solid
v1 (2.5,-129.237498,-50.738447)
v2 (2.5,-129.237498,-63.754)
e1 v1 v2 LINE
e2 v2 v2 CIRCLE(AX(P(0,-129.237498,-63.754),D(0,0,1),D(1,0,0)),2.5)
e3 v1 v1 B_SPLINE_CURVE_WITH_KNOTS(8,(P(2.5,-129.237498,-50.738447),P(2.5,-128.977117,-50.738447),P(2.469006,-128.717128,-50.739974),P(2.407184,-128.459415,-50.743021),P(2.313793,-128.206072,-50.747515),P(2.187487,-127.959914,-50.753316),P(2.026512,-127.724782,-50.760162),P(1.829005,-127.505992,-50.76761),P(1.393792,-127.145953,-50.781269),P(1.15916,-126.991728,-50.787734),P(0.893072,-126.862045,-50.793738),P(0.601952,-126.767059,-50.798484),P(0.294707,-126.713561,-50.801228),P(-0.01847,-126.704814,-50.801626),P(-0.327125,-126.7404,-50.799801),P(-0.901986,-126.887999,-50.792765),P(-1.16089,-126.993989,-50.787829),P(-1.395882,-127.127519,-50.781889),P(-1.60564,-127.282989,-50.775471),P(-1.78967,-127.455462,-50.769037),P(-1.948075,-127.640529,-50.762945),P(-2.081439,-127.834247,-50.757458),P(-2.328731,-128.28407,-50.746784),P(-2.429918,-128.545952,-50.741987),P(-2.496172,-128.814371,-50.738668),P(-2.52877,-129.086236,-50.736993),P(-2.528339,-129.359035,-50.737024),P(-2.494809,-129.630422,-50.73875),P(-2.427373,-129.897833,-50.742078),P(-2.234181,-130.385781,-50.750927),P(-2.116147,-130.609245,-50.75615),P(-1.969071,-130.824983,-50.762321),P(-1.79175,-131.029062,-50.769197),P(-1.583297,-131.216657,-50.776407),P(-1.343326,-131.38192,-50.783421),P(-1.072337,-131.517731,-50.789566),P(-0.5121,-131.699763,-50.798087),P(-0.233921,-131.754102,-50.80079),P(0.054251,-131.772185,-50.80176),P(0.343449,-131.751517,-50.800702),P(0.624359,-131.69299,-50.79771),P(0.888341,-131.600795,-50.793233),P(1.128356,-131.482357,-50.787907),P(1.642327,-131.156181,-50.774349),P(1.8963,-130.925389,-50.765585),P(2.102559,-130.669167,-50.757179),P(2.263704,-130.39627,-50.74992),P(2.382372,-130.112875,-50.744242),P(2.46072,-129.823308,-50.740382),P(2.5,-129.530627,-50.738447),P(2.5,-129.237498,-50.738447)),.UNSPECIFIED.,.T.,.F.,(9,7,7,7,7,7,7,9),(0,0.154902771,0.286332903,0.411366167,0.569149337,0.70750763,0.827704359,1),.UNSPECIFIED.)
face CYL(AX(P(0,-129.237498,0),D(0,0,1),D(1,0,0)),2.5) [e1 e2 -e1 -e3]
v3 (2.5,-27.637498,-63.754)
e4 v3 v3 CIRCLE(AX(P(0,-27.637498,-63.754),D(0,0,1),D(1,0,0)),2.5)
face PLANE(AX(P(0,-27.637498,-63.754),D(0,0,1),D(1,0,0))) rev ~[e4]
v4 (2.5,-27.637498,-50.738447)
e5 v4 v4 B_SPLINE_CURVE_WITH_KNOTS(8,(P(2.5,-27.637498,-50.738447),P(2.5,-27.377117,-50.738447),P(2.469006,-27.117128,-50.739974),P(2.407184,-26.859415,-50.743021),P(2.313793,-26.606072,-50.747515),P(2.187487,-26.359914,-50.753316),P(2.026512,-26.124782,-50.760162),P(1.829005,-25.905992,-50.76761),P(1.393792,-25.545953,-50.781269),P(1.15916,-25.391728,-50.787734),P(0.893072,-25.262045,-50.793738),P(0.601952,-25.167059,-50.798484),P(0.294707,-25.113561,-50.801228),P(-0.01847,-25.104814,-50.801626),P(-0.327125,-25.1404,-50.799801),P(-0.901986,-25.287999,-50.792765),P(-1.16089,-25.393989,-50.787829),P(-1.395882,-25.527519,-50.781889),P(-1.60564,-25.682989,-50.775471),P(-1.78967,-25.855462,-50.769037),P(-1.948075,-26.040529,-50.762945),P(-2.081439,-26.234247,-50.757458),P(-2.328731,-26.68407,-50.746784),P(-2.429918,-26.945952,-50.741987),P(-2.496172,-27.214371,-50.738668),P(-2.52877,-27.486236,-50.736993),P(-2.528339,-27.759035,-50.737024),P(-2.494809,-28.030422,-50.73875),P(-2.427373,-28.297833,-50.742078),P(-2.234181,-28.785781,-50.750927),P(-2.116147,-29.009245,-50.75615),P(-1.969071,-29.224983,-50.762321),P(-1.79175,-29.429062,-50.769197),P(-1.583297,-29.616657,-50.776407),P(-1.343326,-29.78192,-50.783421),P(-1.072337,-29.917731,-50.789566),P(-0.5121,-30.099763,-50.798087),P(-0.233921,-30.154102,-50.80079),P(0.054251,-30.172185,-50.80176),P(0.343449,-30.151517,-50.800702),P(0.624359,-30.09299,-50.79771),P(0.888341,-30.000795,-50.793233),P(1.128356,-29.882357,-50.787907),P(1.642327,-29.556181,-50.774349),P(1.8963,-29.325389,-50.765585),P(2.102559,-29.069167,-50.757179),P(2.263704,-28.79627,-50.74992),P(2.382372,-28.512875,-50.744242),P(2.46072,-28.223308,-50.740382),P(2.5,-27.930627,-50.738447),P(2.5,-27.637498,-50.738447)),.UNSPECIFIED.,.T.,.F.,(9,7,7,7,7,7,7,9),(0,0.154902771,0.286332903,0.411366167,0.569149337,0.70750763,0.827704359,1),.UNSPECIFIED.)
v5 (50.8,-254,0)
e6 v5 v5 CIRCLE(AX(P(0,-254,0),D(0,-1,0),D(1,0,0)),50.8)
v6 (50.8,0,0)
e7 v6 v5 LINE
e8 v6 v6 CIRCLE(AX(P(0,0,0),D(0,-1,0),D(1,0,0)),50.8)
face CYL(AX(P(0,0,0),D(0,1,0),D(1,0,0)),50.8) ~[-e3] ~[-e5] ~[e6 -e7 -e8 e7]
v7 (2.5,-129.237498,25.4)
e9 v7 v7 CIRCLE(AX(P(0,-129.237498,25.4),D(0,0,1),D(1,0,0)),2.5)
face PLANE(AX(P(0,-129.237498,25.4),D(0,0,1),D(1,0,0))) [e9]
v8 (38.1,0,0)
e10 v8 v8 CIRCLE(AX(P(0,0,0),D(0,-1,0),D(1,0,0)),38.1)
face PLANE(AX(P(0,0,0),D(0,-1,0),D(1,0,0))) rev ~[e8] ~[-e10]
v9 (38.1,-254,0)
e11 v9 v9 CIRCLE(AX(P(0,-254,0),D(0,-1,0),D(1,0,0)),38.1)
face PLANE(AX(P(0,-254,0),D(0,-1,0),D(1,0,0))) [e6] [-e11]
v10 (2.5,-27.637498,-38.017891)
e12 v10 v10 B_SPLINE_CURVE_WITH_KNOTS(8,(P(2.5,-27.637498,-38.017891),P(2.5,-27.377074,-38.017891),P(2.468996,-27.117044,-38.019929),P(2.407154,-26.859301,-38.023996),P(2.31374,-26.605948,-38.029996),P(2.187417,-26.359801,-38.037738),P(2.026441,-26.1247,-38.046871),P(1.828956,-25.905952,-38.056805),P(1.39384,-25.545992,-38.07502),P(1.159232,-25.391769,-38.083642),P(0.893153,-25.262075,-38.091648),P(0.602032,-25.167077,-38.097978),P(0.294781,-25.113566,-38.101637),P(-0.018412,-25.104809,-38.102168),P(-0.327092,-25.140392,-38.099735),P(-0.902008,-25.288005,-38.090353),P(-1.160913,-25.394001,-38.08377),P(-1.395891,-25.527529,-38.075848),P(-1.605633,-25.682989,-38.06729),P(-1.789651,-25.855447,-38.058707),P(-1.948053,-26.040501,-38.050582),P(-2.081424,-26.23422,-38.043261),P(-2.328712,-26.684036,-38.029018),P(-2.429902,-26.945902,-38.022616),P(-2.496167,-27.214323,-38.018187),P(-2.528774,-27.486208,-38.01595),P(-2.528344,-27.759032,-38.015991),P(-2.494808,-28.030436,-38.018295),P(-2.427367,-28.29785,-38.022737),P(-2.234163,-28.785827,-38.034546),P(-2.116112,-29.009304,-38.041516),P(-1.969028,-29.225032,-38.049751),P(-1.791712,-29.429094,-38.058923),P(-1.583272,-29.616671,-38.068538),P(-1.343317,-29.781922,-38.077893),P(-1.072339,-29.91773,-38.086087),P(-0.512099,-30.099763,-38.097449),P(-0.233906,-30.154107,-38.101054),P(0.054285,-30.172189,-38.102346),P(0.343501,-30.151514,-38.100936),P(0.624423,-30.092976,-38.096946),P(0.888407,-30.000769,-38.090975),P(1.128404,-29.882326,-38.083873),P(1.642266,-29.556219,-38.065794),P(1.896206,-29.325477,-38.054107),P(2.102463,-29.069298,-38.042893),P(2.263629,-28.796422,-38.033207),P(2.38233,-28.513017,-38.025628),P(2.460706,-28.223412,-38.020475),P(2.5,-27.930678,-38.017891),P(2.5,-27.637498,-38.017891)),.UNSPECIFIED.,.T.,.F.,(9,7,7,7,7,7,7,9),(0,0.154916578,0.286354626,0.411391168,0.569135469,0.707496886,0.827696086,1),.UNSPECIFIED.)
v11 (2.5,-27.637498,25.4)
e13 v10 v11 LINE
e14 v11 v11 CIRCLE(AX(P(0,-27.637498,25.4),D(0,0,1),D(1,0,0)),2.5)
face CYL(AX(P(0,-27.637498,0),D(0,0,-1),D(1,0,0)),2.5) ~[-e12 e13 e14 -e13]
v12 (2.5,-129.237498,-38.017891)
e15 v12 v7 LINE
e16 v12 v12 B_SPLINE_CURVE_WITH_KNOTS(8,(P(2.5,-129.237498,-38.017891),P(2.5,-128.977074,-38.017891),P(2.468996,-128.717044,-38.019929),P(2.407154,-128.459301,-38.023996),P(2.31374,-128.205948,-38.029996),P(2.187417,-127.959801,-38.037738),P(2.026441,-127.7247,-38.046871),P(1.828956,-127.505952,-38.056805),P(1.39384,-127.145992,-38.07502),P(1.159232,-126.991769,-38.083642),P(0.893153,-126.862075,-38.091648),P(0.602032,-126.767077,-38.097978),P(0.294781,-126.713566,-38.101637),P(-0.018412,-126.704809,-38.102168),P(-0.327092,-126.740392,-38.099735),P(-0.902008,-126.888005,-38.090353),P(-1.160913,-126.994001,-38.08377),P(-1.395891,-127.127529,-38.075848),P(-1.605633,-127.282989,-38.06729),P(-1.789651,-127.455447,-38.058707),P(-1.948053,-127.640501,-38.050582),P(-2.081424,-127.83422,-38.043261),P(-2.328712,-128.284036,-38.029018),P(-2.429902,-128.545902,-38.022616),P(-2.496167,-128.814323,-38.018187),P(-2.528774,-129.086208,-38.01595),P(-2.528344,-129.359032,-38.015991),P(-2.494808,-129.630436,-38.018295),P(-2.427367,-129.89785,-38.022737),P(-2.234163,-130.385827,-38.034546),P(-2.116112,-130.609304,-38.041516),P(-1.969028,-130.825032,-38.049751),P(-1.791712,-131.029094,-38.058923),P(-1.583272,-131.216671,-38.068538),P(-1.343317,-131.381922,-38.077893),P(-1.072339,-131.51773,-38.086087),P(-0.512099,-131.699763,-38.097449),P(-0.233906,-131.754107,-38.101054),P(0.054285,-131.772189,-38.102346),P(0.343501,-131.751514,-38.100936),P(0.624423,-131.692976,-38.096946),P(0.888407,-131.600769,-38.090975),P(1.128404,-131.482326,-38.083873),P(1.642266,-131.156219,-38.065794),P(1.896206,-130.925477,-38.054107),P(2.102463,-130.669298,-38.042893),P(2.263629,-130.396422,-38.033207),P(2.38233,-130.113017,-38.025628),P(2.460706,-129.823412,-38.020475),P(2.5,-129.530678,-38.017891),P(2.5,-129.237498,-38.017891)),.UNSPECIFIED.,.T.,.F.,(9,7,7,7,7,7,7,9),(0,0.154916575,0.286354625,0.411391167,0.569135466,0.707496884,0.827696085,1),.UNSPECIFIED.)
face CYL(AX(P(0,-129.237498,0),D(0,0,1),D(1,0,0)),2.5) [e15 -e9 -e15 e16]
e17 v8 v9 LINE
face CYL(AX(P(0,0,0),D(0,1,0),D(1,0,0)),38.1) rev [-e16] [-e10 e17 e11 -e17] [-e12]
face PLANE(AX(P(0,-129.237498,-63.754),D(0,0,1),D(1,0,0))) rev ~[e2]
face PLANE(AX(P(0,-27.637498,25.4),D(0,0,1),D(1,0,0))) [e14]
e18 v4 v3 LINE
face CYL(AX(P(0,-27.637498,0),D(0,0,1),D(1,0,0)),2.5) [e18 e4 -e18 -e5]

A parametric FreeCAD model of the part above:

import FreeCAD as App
import Part
import Sketcher
Q = App.Units.Quantity

doc = App.newDocument("Part")
params = doc.addObject("Spreadsheet::Sheet", "Params")
for row, (alias, value) in enumerate([
    ("sketch1_diameter", "4 in"),
    ("sketch1_diameter2", "3 in"),
    ("pad1_length", "10 in"),
    ("pad2_length", "2.51 in"),
    ("pad2_length2", "1 in"),
], start=1):
    params.set(f"A{row}", alias)
    params.set(f"B{row}", "=" + value)
    params.setAlias(f"B{row}", alias)

body = doc.addObject("PartDesign::Body", "Body")

sketch1 = body.newObject("Sketcher::SketchObject", "Sketch")
sketch1.AttachmentSupport = (doc.getObject("XZ_Plane"), [""])
sketch1.MapMode = "FlatFace"
sketch1.addGeometry([
    Part.Circle(App.Vector(0, 0, 0), App.Vector(0, 0, 1), 50.8),
    Part.Circle(App.Vector(0, 0, 0), App.Vector(0, 0, 1), 38.1),
], False)
sketch1.addConstraint([
    Sketcher.Constraint("Coincident", 0, 3, -1, 1),
    Sketcher.Constraint("Coincident", 1, 3, -1, 1),
    Sketcher.Constraint("Diameter", 0, Q("4 in")),
    Sketcher.Constraint("Diameter", 1, Q("3 in")),
])
sketch1.setExpression("Constraints[2]", "Params.sketch1_diameter")
sketch1.setExpression("Constraints[3]", "Params.sketch1_diameter2")
pad1 = body.newObject("PartDesign::Pad", "Pad")
pad1.Profile = sketch1
pad1.setExpression("Length", "Params.pad1_length")

sketch2 = body.newObject("Sketcher::SketchObject", "Sketch001")
sketch2.AttachmentSupport = (doc.getObject("XY_Plane"), [""])
sketch2.MapMode = "FlatFace"
sketch2.addGeometry([
    Part.Circle(App.Vector(0, -27.637498, 0), App.Vector(0, 0, 1), 2.5),
    Part.Circle(App.Vector(0, -129.237498, 0), App.Vector(0, 0, 1), 2.5),
], False)
sketch2.addConstraint([
    Sketcher.Constraint("Equal", 0, 1),
    Sketcher.Constraint("PointOnObject", 0, 3, -2),
    Sketcher.Constraint("PointOnObject", 1, 3, -2),
    Sketcher.Constraint("DistanceY", 1, 3, 0, 3, Q("4 in")),
    Sketcher.Constraint("Diameter", 0, 5.0),
    Sketcher.Constraint("DistanceY", 0, 3, -1, 1, 27.637498),
])
pad2 = body.newObject("PartDesign::Pad", "Pad001")
pad2.Profile = sketch2
pad2.Type = "TwoLengths"
pad2.setExpression("Length", "Params.pad2_length")
pad2.setExpression("Length2", "Params.pad2_length2")
pad2.Reversed = True

doc.recompute()
